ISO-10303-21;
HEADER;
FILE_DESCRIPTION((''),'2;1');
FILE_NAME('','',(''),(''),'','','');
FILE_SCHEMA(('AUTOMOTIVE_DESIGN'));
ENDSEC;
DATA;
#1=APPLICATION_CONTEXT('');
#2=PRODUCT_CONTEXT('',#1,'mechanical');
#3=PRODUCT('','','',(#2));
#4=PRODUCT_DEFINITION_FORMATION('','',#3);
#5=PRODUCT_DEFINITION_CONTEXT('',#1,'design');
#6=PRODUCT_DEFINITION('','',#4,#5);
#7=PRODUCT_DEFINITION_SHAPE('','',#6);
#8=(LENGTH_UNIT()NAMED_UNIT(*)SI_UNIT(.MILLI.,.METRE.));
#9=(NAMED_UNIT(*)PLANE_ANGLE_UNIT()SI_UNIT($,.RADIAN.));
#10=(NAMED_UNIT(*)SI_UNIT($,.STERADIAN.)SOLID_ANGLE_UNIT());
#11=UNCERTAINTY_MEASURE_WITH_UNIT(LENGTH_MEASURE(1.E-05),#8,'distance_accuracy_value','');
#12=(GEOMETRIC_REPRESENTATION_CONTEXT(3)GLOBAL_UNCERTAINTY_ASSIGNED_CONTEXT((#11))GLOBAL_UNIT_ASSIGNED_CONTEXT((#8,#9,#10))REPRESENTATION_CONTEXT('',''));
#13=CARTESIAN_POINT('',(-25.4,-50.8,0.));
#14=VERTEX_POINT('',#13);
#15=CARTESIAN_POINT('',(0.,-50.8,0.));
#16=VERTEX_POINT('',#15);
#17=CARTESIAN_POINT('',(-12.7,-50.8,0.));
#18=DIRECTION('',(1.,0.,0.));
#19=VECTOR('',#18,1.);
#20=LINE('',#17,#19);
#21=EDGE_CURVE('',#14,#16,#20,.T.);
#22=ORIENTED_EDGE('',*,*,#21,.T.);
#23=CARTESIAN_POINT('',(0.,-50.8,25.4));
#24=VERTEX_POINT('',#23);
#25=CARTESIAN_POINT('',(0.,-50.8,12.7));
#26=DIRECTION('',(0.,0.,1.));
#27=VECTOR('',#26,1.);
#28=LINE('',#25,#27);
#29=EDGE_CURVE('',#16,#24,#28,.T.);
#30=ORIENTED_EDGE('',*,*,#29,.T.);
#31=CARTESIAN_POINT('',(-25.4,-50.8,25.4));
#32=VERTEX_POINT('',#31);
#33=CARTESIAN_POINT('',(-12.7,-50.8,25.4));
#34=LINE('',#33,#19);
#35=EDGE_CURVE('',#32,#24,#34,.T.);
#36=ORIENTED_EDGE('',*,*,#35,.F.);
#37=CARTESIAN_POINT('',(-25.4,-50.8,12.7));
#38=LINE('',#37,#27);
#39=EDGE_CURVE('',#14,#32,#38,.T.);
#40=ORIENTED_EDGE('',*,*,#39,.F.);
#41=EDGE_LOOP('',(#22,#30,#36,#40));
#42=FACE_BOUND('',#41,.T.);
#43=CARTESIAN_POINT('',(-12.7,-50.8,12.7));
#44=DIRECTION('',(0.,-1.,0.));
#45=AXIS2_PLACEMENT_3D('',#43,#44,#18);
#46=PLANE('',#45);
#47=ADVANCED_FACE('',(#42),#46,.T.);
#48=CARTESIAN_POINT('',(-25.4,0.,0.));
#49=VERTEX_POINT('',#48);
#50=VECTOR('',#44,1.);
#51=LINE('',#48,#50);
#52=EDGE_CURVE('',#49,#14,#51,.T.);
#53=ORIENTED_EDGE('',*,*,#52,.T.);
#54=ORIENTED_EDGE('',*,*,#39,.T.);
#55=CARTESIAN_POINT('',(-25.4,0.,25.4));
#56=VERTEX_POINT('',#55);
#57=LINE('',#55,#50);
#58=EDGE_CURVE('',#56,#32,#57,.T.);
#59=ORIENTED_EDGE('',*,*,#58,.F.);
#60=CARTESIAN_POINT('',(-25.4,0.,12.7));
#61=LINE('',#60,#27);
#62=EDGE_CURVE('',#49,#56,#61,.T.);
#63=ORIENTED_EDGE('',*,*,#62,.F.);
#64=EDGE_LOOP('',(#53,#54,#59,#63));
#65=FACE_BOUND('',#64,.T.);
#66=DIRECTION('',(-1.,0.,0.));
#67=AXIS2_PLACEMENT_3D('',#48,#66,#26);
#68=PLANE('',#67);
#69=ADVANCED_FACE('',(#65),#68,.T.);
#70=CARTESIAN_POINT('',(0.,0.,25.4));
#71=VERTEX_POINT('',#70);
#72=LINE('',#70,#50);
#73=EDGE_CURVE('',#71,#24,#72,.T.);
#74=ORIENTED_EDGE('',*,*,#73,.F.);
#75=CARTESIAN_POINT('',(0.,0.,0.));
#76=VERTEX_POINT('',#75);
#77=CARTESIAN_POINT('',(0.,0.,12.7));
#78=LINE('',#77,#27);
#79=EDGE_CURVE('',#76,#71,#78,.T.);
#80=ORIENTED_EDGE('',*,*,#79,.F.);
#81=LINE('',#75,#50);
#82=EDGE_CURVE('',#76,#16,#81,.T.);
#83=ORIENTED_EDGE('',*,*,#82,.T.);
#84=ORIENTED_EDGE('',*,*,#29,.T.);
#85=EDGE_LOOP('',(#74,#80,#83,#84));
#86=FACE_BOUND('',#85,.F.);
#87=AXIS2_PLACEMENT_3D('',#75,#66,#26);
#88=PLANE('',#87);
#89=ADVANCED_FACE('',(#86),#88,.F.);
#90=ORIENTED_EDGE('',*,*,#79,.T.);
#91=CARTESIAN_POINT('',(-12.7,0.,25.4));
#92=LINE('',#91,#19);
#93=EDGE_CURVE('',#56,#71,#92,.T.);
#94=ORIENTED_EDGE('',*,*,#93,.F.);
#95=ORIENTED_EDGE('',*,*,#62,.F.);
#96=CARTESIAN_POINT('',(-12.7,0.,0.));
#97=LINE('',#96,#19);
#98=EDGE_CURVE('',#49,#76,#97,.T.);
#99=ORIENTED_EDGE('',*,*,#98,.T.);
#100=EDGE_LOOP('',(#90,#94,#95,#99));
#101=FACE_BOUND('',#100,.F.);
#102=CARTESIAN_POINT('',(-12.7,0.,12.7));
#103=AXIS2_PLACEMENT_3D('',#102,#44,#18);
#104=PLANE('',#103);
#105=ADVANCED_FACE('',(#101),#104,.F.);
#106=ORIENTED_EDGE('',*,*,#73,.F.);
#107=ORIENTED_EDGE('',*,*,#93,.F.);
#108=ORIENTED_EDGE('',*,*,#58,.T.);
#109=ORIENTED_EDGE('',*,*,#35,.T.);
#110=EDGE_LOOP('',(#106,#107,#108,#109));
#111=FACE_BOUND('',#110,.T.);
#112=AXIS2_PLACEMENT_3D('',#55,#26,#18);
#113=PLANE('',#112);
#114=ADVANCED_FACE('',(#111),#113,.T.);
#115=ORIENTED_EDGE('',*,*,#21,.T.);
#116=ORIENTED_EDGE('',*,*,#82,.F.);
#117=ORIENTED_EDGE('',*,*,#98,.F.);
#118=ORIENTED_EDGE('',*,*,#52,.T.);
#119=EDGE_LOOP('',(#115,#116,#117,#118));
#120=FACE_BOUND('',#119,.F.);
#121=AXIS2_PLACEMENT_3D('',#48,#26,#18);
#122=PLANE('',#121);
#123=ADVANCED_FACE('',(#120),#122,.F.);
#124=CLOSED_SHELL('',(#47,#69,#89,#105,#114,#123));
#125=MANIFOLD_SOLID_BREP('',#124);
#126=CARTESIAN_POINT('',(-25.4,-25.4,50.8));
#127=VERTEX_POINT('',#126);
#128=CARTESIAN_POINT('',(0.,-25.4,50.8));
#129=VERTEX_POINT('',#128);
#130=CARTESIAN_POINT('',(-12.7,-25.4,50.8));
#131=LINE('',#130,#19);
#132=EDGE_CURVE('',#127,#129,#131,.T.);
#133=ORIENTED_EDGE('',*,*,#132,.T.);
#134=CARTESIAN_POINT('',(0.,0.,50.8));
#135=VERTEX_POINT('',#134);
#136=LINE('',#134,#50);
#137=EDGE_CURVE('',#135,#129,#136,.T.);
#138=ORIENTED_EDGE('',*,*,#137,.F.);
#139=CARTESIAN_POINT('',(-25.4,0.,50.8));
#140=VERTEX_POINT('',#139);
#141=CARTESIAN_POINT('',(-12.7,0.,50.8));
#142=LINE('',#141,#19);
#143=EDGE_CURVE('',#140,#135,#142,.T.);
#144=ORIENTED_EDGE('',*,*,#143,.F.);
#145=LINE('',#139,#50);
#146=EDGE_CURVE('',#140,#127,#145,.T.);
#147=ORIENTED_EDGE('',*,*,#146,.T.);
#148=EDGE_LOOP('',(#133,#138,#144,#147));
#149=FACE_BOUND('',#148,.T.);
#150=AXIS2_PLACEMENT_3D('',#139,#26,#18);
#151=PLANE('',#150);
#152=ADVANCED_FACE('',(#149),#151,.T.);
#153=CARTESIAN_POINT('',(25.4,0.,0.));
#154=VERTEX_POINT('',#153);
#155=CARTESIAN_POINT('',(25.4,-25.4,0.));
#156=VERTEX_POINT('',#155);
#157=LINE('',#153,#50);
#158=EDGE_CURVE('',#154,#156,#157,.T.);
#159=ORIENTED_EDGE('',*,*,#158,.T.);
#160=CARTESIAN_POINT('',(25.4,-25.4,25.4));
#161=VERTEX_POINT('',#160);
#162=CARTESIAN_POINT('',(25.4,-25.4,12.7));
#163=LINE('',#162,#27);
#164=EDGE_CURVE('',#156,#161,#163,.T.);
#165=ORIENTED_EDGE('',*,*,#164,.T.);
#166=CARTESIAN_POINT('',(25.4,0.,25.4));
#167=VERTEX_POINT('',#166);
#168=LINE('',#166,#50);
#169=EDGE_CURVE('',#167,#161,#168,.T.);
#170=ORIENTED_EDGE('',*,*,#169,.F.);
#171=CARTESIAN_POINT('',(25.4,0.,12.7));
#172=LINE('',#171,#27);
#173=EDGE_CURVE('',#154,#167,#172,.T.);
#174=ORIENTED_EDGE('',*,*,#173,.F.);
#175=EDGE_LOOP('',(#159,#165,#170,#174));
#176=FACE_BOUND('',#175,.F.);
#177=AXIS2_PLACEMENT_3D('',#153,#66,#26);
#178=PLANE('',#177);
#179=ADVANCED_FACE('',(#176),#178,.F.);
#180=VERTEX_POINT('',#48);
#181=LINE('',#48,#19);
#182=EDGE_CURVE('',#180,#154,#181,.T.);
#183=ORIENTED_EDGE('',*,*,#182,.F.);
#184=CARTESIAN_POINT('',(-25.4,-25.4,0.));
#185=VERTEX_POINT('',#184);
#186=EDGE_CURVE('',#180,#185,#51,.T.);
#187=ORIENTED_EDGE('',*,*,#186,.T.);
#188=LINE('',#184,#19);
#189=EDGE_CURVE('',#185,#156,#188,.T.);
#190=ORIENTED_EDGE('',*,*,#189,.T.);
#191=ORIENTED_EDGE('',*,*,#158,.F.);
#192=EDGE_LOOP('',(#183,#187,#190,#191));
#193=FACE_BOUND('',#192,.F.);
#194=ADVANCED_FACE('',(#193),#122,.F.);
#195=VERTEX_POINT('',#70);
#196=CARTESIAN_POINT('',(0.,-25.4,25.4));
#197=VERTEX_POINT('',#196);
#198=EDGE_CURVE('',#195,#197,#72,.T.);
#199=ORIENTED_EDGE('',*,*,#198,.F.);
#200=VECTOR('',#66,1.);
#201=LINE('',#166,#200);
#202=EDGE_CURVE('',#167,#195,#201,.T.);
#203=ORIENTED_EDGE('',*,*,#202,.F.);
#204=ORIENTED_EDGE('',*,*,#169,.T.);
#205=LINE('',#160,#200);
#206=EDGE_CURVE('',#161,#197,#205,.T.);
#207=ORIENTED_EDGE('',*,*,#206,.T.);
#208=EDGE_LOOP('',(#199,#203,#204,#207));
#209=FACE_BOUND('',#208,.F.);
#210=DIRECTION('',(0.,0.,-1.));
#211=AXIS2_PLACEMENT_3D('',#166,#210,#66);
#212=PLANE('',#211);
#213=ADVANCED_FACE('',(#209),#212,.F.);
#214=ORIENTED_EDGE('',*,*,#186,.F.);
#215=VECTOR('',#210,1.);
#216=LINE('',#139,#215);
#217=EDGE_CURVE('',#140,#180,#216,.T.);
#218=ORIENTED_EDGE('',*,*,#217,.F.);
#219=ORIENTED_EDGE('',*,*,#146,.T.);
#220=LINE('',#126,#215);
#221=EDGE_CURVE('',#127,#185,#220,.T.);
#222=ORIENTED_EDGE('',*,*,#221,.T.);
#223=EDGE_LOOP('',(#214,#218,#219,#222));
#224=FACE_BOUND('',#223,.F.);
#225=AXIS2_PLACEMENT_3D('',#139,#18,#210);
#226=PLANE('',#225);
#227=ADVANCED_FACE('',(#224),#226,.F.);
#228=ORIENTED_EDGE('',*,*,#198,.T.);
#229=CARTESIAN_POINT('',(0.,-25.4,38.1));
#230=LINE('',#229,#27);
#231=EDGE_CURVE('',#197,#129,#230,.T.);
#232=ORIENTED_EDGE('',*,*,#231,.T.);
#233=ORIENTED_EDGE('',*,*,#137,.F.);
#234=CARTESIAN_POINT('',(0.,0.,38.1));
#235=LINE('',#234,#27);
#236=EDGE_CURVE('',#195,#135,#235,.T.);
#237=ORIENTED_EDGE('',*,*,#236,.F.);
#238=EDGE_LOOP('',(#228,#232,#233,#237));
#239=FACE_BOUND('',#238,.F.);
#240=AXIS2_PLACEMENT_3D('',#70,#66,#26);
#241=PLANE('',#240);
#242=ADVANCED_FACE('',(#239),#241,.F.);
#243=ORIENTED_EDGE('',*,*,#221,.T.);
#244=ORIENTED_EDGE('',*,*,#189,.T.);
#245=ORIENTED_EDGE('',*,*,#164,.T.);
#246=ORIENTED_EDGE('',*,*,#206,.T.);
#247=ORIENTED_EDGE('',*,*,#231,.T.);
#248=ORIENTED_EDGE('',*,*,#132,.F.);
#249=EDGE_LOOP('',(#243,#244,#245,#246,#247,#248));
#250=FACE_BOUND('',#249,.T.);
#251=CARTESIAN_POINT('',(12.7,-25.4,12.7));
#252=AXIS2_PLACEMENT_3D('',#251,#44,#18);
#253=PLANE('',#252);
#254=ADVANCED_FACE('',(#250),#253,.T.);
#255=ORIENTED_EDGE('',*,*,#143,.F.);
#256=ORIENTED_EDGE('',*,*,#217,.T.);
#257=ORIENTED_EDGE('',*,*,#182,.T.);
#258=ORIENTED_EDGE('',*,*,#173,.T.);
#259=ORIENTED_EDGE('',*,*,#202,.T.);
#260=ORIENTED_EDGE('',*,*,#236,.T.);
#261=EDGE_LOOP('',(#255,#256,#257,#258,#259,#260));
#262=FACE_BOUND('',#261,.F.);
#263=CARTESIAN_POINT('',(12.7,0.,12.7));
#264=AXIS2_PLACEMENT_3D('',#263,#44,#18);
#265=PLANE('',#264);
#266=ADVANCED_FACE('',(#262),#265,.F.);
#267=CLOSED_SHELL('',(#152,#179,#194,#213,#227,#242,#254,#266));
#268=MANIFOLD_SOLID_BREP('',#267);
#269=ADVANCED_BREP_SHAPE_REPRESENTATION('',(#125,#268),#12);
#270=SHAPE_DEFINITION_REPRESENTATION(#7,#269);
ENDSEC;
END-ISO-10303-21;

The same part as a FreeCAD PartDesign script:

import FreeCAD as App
import Part
import Sketcher
from FreeCAD import Vector
Q = App.Units.Quantity

doc = App.newDocument("Part")
body = doc.addObject("PartDesign::Body", "Body")

sketch1 = doc.addObject("Sketcher::SketchObject", "Sketch")
body.addObject(sketch1)
sketch1.AttachmentSupport = (doc.XZ_Plane, [""])
sketch1.MapMode = "FlatFace"
sketch1.addGeometry([
    Part.LineSegment(Vector(-25, 25, 0), Vector(-25, 0, 0)),
    Part.LineSegment(Vector(-25, 0, 0), Vector(0, 0, 0)),
    Part.LineSegment(Vector(0, 0, 0), Vector(0, 25, 0)),
    Part.LineSegment(Vector(0, 25, 0), Vector(-25, 25, 0)),
], False)
sketch1.addConstraint([
    Sketcher.Constraint("Coincident", 0, 2, 1, 1),
    Sketcher.Constraint("Coincident", 1, 2, 2, 1),
    Sketcher.Constraint("Coincident", 2, 2, 3, 1),
    Sketcher.Constraint("Coincident", 3, 2, 0, 1),
    Sketcher.Constraint("Vertical", 0),
    Sketcher.Constraint("Horizontal", 1),
    Sketcher.Constraint("Vertical", 2),
    Sketcher.Constraint("Horizontal", 3),
    Sketcher.Constraint("Coincident", 1, 2, -1, 1),
    Sketcher.Constraint("Equal", 3, 0),
    Sketcher.Constraint("DistanceX", 1, 1, 1, 2, Q("1 in")),
])
pad1 = doc.addObject("PartDesign::Pad", "Pad")
body.addObject(pad1)
pad1.Profile = sketch1
pad1.Length = Q("2 in")
body2 = doc.addObject("PartDesign::Body", "Body001")

sketch2 = doc.addObject("Sketcher::SketchObject", "Sketch001")
body2.addObject(sketch2)
sketch2.AttachmentSupport = (doc.getObject("XZ_Plane001"), [""])
sketch2.MapMode = "FlatFace"
sketch2.addGeometry([
    Part.LineSegment(Vector(25, 0, 0), Vector(25, 25, 0)),
    Part.LineSegment(Vector(25, 25, 0), Vector(0, 25, 0)),
    Part.LineSegment(Vector(0, 25, 0), Vector(0, 51, 0)),
    Part.LineSegment(Vector(0, 51, 0), Vector(-25, 51, 0)),
    Part.LineSegment(Vector(-25, 51, 0), Vector(-25, 0, 0)),
    Part.LineSegment(Vector(-25, 0, 0), Vector(25, 0, 0)),
], False)
sketch2.addConstraint([
    Sketcher.Constraint("Coincident", 0, 2, 1, 1),
    Sketcher.Constraint("Coincident", 1, 2, 2, 1),
    Sketcher.Constraint("Coincident", 2, 2, 3, 1),
    Sketcher.Constraint("Coincident", 3, 2, 4, 1),
    Sketcher.Constraint("Coincident", 4, 2, 5, 1),
    Sketcher.Constraint("Coincident", 5, 2, 0, 1),
    Sketcher.Constraint("Vertical", 0),
    Sketcher.Constraint("Horizontal", 1),
    Sketcher.Constraint("Vertical", 2),
    Sketcher.Constraint("Horizontal", 3),
    Sketcher.Constraint("Vertical", 4),
    Sketcher.Constraint("Horizontal", 5),
    Sketcher.Constraint("Symmetric", 4, 2, 5, 2, -1, 1),
    Sketcher.Constraint("PointOnObject", 1, 2, -2),
    Sketcher.Constraint("Equal", 3, 0),
    Sketcher.Constraint("Equal", 0, 2),
    Sketcher.Constraint("DistanceX", 1, 2, 1, 1, Q("1 in")),
])
pad2 = doc.addObject("PartDesign::Pad", "Pad001")
body2.addObject(pad2)
pad2.Profile = sketch2
pad2.Length = Q("1 in")

doc.recompute()
